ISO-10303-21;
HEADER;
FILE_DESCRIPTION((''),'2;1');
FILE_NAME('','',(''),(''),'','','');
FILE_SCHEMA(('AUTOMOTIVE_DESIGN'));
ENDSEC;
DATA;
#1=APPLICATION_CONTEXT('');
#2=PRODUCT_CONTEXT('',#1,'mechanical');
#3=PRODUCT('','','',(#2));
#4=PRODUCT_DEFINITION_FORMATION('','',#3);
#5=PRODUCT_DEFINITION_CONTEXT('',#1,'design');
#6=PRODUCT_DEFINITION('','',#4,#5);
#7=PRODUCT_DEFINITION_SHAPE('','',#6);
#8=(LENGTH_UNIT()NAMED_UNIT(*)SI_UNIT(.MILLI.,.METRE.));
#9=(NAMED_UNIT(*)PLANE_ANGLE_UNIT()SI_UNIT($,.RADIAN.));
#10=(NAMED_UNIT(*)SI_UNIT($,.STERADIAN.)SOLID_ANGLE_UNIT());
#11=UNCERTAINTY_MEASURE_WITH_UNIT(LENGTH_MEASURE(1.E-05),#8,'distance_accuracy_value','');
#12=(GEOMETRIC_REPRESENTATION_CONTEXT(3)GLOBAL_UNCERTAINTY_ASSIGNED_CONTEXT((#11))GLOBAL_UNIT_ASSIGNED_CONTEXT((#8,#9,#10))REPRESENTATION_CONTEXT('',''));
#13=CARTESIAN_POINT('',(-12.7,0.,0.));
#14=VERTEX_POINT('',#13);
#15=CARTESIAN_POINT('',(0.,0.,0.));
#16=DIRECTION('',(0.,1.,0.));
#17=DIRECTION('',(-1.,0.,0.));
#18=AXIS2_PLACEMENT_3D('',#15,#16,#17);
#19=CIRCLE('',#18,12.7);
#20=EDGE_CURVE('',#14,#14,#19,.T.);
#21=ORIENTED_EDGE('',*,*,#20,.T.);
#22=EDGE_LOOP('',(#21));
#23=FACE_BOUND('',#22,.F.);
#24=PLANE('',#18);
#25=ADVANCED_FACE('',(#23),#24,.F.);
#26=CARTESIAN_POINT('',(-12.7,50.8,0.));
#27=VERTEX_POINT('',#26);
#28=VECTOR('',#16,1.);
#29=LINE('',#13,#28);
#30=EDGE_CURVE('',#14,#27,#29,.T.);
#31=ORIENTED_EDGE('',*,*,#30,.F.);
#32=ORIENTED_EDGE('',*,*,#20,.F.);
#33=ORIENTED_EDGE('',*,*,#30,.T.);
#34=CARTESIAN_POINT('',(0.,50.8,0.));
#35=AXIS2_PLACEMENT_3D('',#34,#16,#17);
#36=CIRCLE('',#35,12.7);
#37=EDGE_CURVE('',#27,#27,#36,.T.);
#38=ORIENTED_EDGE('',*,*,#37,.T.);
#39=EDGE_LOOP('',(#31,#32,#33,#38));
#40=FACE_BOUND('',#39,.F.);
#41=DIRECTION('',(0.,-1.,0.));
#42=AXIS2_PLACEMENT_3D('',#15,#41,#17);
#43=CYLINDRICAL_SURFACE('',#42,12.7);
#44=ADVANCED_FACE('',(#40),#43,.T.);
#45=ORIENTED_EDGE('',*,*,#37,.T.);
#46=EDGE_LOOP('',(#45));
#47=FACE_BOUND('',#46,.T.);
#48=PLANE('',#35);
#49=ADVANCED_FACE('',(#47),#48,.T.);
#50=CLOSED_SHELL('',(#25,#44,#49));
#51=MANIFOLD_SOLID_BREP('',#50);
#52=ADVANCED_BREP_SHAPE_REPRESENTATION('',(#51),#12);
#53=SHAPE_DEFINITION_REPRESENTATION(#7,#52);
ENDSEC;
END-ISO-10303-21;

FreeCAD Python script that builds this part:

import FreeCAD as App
import Part
import Sketcher
Q = App.Units.Quantity

doc = App.newDocument("Part")
body = doc.addObject("PartDesign::Body", "Body")

sketch1 = body.newObject("Sketcher::SketchObject", "Sketch")
sketch1.AttachmentSupport = (doc.getObject("XZ_Plane"), [""])
sketch1.MapMode = "FlatFace"
sketch1.addGeometry(Part.Circle(App.Vector(0, 0, 0), App.Vector(0, 0, 1), 13), False)
sketch1.addConstraint(Sketcher.Constraint("Coincident", 0, 3, -1, 1))
sketch1.addConstraint(Sketcher.Constraint("Diameter", 0, Q("1 in")))
pad1 = body.newObject("PartDesign::Pad", "Pad")
pad1.Profile = sketch1
pad1.Length = Q("2 in")
pad1.Reversed = True

doc.recompute()
